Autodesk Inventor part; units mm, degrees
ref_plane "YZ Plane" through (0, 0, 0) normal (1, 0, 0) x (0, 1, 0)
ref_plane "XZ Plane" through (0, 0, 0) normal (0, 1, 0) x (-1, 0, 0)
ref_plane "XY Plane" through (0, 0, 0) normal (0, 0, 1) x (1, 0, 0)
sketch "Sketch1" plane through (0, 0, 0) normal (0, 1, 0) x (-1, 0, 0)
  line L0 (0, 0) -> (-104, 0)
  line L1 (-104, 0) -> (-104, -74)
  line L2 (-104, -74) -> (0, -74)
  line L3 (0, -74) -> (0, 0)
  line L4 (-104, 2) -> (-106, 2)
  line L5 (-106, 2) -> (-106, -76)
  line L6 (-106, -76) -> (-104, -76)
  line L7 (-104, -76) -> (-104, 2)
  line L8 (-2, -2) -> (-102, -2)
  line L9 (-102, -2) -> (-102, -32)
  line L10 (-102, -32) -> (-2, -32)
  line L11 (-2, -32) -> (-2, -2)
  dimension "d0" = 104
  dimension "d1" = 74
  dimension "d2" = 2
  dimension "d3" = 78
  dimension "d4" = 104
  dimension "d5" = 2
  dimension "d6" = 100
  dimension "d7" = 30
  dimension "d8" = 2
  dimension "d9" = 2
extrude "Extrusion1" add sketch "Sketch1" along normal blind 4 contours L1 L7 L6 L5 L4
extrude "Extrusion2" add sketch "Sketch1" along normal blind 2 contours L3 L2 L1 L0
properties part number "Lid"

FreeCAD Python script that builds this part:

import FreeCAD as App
import Part
import Sketcher
from FreeCAD import Vector
Q = App.Units.Quantity

doc = App.newDocument("Part")
params = doc.addObject("Spreadsheet::Sheet", "Params")
for row, (alias, value) in enumerate([
    ("sketch1_width", "2 mm"),
    ("sketch1_height", "78 mm"),
    ("pad1_length", "4 mm"),
    ("sketch2_width", "104 mm"),
    ("sketch2_width2", "100 mm"),
    ("sketch2_height", "74 mm"),
    ("sketch2_height2", "30 mm"),
    ("pad2_length", "2 mm"),
], start=1):
    params.set(f"A{row}", alias)
    params.set(f"B{row}", "=" + value)
    params.setAlias(f"B{row}", alias)

body = doc.addObject("PartDesign::Body", "Body")

sketch1 = body.newObject("Sketcher::SketchObject", "Sketch")
sketch1.AttachmentSupport = (doc.getObject("XZ_Plane"), [""])
sketch1.MapMode = "FlatFace"
sketch1.addGeometry(Part.LineSegment(Vector(104, -76, 0), Vector(104, 2, 0)), False)
sketch1.addGeometry(Part.LineSegment(Vector(104, 2, 0), Vector(106, 2, 0)), False)
sketch1.addGeometry(Part.LineSegment(Vector(106, 2, 0), Vector(106, -76, 0)), False)
sketch1.addGeometry(Part.LineSegment(Vector(106, -76, 0), Vector(104, -76, 0)), False)
sketch1.addConstraint(Sketcher.Constraint("Coincident", 0, 2, 1, 1))
sketch1.addConstraint(Sketcher.Constraint("Coincident", 1, 2, 2, 1))
sketch1.addConstraint(Sketcher.Constraint("Coincident", 2, 2, 3, 1))
sketch1.addConstraint(Sketcher.Constraint("Coincident", 3, 2, 0, 1))
sketch1.addConstraint(Sketcher.Constraint("Vertical", 0))
sketch1.addConstraint(Sketcher.Constraint("Horizontal", 1))
sketch1.addConstraint(Sketcher.Constraint("Vertical", 2))
sketch1.addConstraint(Sketcher.Constraint("Horizontal", 3))
sketch1.addConstraint(Sketcher.Constraint("DistanceX", 1, 1, 1, 2, Q("2 mm")))
sketch1.addConstraint(Sketcher.Constraint("DistanceY", 0, 1, 0, 2, Q("78 mm")))
sketch1.addConstraint(Sketcher.Constraint("DistanceX", -1, 1, 0, 2, Q("104 mm")))
sketch1.addConstraint(Sketcher.Constraint("DistanceY", -1, 1, 0, 2, Q("2 mm")))
sketch1.setExpression("Constraints[8]", "Params.sketch1_width")
sketch1.setExpression("Constraints[9]", "Params.sketch1_height")
pad1 = body.newObject("PartDesign::Pad", "Pad")
pad1.Profile = sketch1
pad1.setExpression("Length", "Params.pad1_length")
pad1.Reversed = True

sketch2 = body.newObject("Sketcher::SketchObject", "Sketch001")
sketch2.AttachmentSupport = (doc.getObject("XZ_Plane"), [""])
sketch2.MapMode = "FlatFace"
sketch2.addGeometry(Part.LineSegment(Vector(0, -74, 0), Vector(0, 0, 0)), False)
sketch2.addGeometry(Part.LineSegment(Vector(0, 0, 0), Vector(104, 0, 0)), False)
sketch2.addGeometry(Part.LineSegment(Vector(104, 0, 0), Vector(104, -74, 0)), False)
sketch2.addGeometry(Part.LineSegment(Vector(104, -74, 0), Vector(0, -74, 0)), False)
sketch2.addGeometry(Part.LineSegment(Vector(102, -2, 0), Vector(2, -2, 0)), False)
sketch2.addGeometry(Part.LineSegment(Vector(2, -2, 0), Vector(2, -32, 0)), False)
sketch2.addGeometry(Part.LineSegment(Vector(2, -32, 0), Vector(102, -32, 0)), False)
sketch2.addGeometry(Part.LineSegment(Vector(102, -32, 0), Vector(102, -2, 0)), False)
sketch2.addConstraint(Sketcher.Constraint("Coincident", 0, 2, 1, 1))
sketch2.addConstraint(Sketcher.Constraint("Coincident", 1, 2, 2, 1))
sketch2.addConstraint(Sketcher.Constraint("Coincident", 2, 2, 3, 1))
sketch2.addConstraint(Sketcher.Constraint("Coincident", 3, 2, 0, 1))
sketch2.addConstraint(Sketcher.Constraint("Coincident", 4, 2, 5, 1))
sketch2.addConstraint(Sketcher.Constraint("Coincident", 5, 2, 6, 1))
sketch2.addConstraint(Sketcher.Constraint("Coincident", 6, 2, 7, 1))
sketch2.addConstraint(Sketcher.Constraint("Coincident", 7, 2, 4, 1))
sketch2.addConstraint(Sketcher.Constraint("Vertical", 0))
sketch2.addConstraint(Sketcher.Constraint("Horizontal", 1))
sketch2.addConstraint(Sketcher.Constraint("Vertical", 2))
sketch2.addConstraint(Sketcher.Constraint("Horizontal", 3))
sketch2.addConstraint(Sketcher.Constraint("Horizontal", 4))
sketch2.addConstraint(Sketcher.Constraint("Vertical", 5))
sketch2.addConstraint(Sketcher.Constraint("Horizontal", 6))
sketch2.addConstraint(Sketcher.Constraint("Vertical", 7))
sketch2.addConstraint(Sketcher.Constraint("Coincident", 0, 2, -1, 1))
sketch2.addConstraint(Sketcher.Constraint("DistanceX", 1, 1, 1, 2, Q("104 mm")))
sketch2.addConstraint(Sketcher.Constraint("DistanceX", 4, 2, 4, 1, Q("100 mm")))
sketch2.addConstraint(Sketcher.Constraint("DistanceY", 0, 1, 0, 2, Q("74 mm")))
sketch2.addConstraint(Sketcher.Constraint("DistanceY", 5, 2, 5, 1, Q("30 mm")))
sketch2.addConstraint(Sketcher.Constraint("DistanceX", -1, 1, 4, 2, Q("2 mm")))
sketch2.addConstraint(Sketcher.Constraint("DistanceY", 4, 2, -1, 1, Q("2 mm")))
sketch2.setExpression("Constraints[17]", "Params.sketch2_width")
sketch2.setExpression("Constraints[18]", "Params.sketch2_width2")
sketch2.setExpression("Constraints[19]", "Params.sketch2_height")
sketch2.setExpression("Constraints[20]", "Params.sketch2_height2")
pad2 = body.newObject("PartDesign::Pad", "Pad001")
pad2.Profile = sketch2
pad2.setExpression("Length", "Params.pad2_length")
pad2.Reversed = True

doc.recompute()
